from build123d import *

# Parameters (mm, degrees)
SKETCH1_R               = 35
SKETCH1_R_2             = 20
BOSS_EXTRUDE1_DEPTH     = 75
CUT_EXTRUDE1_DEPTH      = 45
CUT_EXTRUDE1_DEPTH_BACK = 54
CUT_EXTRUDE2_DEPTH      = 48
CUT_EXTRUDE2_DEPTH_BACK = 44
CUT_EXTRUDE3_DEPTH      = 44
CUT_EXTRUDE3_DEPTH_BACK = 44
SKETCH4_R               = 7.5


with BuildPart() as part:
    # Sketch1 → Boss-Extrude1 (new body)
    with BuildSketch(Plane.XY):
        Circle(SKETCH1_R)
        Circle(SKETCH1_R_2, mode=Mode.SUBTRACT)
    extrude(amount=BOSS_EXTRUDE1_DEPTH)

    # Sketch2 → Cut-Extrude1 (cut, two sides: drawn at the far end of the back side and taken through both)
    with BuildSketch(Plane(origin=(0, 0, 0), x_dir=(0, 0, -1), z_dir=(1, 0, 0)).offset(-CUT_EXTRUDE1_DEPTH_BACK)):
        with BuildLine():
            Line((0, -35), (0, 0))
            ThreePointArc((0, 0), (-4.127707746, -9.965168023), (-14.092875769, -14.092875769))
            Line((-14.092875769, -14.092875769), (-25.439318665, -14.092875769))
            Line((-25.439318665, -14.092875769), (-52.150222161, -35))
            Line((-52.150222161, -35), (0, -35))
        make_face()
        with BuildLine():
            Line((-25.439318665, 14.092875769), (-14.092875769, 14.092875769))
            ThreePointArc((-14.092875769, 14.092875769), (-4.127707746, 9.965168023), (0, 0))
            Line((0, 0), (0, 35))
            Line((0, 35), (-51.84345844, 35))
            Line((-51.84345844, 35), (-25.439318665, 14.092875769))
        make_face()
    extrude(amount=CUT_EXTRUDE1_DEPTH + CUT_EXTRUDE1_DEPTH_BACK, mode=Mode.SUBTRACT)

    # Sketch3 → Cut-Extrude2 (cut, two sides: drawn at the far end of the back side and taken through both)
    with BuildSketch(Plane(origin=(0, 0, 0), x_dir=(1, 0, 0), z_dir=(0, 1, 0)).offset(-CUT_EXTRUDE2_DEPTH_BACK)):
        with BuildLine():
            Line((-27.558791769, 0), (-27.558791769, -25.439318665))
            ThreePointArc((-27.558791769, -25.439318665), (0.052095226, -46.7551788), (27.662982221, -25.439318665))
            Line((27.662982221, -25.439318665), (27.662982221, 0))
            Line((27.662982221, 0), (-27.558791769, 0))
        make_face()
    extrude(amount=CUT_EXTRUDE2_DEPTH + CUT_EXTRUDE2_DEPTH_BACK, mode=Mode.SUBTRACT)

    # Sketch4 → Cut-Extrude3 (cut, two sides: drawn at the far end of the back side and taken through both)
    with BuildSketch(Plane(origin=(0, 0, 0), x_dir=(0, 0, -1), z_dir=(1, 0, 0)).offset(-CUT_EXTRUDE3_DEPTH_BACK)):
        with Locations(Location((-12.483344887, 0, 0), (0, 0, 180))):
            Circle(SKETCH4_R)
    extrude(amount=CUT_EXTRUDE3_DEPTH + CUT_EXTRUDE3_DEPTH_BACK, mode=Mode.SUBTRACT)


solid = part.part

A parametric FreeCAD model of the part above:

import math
import FreeCAD as App
import Part
import Sketcher

doc = App.newDocument("Part")
body = doc.addObject("PartDesign::Body", "Body")

# Sketch on XY plane
sketch1 = body.newObject("Sketcher::SketchObject", "Sketch")
sketch1.AttachmentSupport = (doc.getObject("XY_Plane"), [""])
sketch1.MapMode = "FlatFace"
sketch1.addGeometry([
    Part.Circle(App.Vector(0, 0, 0), App.Vector(0, 0, 1), 35),
    Part.Circle(App.Vector(0, 0, 0), App.Vector(0, 0, 1), 20),
], False)
sketch1.addConstraint([
    Sketcher.Constraint("Coincident", 0, 3, -1, 1),
    Sketcher.Constraint("Coincident", 1, 3, -1, 1),
    Sketcher.Constraint("Diameter", 0, 70.0),
    Sketcher.Constraint("Diameter", 1, 40.0),
])
pad1 = body.newObject("PartDesign::Pad", "Pad")
pad1.Profile = sketch1
pad1.Length = 75

# Sketch on YZ plane
sketch2 = body.newObject("Sketcher::SketchObject", "Sketch001")
sketch2.AttachmentSupport = (doc.getObject("YZ_Plane"), [""])
sketch2.MapMode = "FlatFace"
sketch2.addGeometry([
    Part.LineSegment(App.Vector(-35, 0, 0), App.Vector(0, 0, 0)),  # 0
    Part.ArcOfCircle(Part.Circle(App.Vector(0, 14, 0), App.Vector(0, 0, 1), 14), math.radians(180), math.radians(270)),  # 1
    Part.LineSegment(App.Vector(-14, 14, 0), App.Vector(-14, 25, 0)),  # 2
    Part.LineSegment(App.Vector(-14, 25, 0), App.Vector(-35, 52, 0)),  # 3
    Part.LineSegment(App.Vector(-35, 52, 0), App.Vector(-35, 0, 0)),  # 4
    Part.LineSegment(App.Vector(14, 25, 0), App.Vector(14, 14, 0)),  # 5
    Part.ArcOfCircle(Part.Circle(App.Vector(0, 14, 0), App.Vector(0, 0, 1), 14), math.radians(-90), math.radians(0)),  # 6
    Part.LineSegment(App.Vector(0, 0, 0), App.Vector(35, 0, 0)),  # 7
    Part.LineSegment(App.Vector(35, 0, 0), App.Vector(35, 52, 0)),  # 8
    Part.LineSegment(App.Vector(35, 52, 0), App.Vector(14, 25, 0)),  # 9
], False)
sketch2.addConstraint([
    Sketcher.Constraint("Tangent", 0, 2, 1, 2),
    Sketcher.Constraint("Tangent", 1, 1, 2, 1),
    Sketcher.Constraint("Coincident", 2, 2, 3, 1),
    Sketcher.Constraint("Coincident", 3, 2, 4, 1),
    Sketcher.Constraint("Coincident", 4, 2, 0, 1),
    Sketcher.Constraint("Tangent", 5, 2, 6, 2),
    Sketcher.Constraint("Tangent", 6, 1, 7, 1),
    Sketcher.Constraint("Coincident", 7, 2, 8, 1),
    Sketcher.Constraint("Coincident", 8, 2, 9, 1),
    Sketcher.Constraint("Coincident", 9, 2, 5, 1),
    Sketcher.Constraint("Horizontal", 0),
    Sketcher.Constraint("Vertical", 2),
    Sketcher.Constraint("Vertical", 4),
    Sketcher.Constraint("Vertical", 5),
    Sketcher.Constraint("Horizontal", 7),
    Sketcher.Constraint("Vertical", 8),
    Sketcher.Constraint("Coincident", 0, 2, -1, 1),
    Sketcher.Constraint("Coincident", 6, 1, -1, 1),
    Sketcher.Constraint("Equal", 1, 6),
    Sketcher.Constraint("Horizontal", 2, 2, 9, 2),
    Sketcher.Constraint("Equal", 0, 7),
    Sketcher.Constraint("DistanceX", 0, 1, 0, 2, 35.0),
    Sketcher.Constraint("Radius", 1, 14.092876),
    Sketcher.Constraint("DistanceY", 8, 1, 8, 2, 51.843458),
    Sketcher.Constraint("Distance", 9, 33.679169),
    Sketcher.Constraint("DistanceY", 4, 2, 4, 1, 52.150222),
])
pocket1 = body.newObject("PartDesign::Pocket", "Pocket")
pocket1.Profile = sketch2
pocket1.Type = "ThroughAll"
pocket1.Midplane = True

# Sketch on XZ plane
sketch3 = body.newObject("Sketcher::SketchObject", "Sketch002")
sketch3.AttachmentSupport = (doc.getObject("XZ_Plane"), [""])
sketch3.MapMode = "FlatFace"
sketch3.addGeometry([
    Part.LineSegment(App.Vector(-28, 0, 0), App.Vector(-28, 25, 0)),
    Part.ArcOfCircle(Part.Circle(App.Vector(0, 18, 0), App.Vector(0, 0, 1), 29), math.radians(15), math.radians(165)),
    Part.LineSegment(App.Vector(28, 25, 0), App.Vector(28, 0, 0)),
    Part.LineSegment(App.Vector(28, 0, 0), App.Vector(-28, 0, 0)),
], False)
sketch3.addConstraint([
    Sketcher.Constraint("Coincident", 0, 2, 1, 2),
    Sketcher.Constraint("Coincident", 1, 1, 2, 1),
    Sketcher.Constraint("Coincident", 2, 2, 3, 1),
    Sketcher.Constraint("Coincident", 3, 2, 0, 1),
    Sketcher.Constraint("Vertical", 0),
    Sketcher.Constraint("Vertical", 2),
    Sketcher.Constraint("Horizontal", 3),
    Sketcher.Constraint("PointOnObject", 2, 2, -1),
    Sketcher.Constraint("Horizontal", 0, 2, 1, 1),
    Sketcher.Constraint("Radius", 1, 28.540415),
    Sketcher.Constraint("DistanceY", 0, 1, 0, 2, 25.439319),
    Sketcher.Constraint("DistanceX", 3, 2, 3, 1, 55.221774),
    Sketcher.Constraint("DistanceX", 0, 2, -1, 1, 27.558792),
])
pocket2 = body.newObject("PartDesign::Pocket", "Pocket001")
pocket2.Profile = sketch3
pocket2.Type = "ThroughAll"
pocket2.Midplane = True

# Sketch on YZ plane
sketch4 = body.newObject("Sketcher::SketchObject", "Sketch003")
sketch4.AttachmentSupport = (doc.getObject("YZ_Plane"), [""])
sketch4.MapMode = "FlatFace"
sketch4.addGeometry(Part.Circle(App.Vector(0, 12, 0), App.Vector(0, 0, 1), 8), False)
sketch4.addConstraint([
    Sketcher.Constraint("PointOnObject", 0, 3, -2),
    Sketcher.Constraint("Diameter", 0, 15.0),
    Sketcher.Constraint("DistanceY", -1, 1, 0, 3, 12.483345),
])
pocket3 = body.newObject("PartDesign::Pocket", "Pocket002")
pocket3.Profile = sketch4
pocket3.Type = "ThroughAll"
pocket3.Midplane = True

doc.recompute()
